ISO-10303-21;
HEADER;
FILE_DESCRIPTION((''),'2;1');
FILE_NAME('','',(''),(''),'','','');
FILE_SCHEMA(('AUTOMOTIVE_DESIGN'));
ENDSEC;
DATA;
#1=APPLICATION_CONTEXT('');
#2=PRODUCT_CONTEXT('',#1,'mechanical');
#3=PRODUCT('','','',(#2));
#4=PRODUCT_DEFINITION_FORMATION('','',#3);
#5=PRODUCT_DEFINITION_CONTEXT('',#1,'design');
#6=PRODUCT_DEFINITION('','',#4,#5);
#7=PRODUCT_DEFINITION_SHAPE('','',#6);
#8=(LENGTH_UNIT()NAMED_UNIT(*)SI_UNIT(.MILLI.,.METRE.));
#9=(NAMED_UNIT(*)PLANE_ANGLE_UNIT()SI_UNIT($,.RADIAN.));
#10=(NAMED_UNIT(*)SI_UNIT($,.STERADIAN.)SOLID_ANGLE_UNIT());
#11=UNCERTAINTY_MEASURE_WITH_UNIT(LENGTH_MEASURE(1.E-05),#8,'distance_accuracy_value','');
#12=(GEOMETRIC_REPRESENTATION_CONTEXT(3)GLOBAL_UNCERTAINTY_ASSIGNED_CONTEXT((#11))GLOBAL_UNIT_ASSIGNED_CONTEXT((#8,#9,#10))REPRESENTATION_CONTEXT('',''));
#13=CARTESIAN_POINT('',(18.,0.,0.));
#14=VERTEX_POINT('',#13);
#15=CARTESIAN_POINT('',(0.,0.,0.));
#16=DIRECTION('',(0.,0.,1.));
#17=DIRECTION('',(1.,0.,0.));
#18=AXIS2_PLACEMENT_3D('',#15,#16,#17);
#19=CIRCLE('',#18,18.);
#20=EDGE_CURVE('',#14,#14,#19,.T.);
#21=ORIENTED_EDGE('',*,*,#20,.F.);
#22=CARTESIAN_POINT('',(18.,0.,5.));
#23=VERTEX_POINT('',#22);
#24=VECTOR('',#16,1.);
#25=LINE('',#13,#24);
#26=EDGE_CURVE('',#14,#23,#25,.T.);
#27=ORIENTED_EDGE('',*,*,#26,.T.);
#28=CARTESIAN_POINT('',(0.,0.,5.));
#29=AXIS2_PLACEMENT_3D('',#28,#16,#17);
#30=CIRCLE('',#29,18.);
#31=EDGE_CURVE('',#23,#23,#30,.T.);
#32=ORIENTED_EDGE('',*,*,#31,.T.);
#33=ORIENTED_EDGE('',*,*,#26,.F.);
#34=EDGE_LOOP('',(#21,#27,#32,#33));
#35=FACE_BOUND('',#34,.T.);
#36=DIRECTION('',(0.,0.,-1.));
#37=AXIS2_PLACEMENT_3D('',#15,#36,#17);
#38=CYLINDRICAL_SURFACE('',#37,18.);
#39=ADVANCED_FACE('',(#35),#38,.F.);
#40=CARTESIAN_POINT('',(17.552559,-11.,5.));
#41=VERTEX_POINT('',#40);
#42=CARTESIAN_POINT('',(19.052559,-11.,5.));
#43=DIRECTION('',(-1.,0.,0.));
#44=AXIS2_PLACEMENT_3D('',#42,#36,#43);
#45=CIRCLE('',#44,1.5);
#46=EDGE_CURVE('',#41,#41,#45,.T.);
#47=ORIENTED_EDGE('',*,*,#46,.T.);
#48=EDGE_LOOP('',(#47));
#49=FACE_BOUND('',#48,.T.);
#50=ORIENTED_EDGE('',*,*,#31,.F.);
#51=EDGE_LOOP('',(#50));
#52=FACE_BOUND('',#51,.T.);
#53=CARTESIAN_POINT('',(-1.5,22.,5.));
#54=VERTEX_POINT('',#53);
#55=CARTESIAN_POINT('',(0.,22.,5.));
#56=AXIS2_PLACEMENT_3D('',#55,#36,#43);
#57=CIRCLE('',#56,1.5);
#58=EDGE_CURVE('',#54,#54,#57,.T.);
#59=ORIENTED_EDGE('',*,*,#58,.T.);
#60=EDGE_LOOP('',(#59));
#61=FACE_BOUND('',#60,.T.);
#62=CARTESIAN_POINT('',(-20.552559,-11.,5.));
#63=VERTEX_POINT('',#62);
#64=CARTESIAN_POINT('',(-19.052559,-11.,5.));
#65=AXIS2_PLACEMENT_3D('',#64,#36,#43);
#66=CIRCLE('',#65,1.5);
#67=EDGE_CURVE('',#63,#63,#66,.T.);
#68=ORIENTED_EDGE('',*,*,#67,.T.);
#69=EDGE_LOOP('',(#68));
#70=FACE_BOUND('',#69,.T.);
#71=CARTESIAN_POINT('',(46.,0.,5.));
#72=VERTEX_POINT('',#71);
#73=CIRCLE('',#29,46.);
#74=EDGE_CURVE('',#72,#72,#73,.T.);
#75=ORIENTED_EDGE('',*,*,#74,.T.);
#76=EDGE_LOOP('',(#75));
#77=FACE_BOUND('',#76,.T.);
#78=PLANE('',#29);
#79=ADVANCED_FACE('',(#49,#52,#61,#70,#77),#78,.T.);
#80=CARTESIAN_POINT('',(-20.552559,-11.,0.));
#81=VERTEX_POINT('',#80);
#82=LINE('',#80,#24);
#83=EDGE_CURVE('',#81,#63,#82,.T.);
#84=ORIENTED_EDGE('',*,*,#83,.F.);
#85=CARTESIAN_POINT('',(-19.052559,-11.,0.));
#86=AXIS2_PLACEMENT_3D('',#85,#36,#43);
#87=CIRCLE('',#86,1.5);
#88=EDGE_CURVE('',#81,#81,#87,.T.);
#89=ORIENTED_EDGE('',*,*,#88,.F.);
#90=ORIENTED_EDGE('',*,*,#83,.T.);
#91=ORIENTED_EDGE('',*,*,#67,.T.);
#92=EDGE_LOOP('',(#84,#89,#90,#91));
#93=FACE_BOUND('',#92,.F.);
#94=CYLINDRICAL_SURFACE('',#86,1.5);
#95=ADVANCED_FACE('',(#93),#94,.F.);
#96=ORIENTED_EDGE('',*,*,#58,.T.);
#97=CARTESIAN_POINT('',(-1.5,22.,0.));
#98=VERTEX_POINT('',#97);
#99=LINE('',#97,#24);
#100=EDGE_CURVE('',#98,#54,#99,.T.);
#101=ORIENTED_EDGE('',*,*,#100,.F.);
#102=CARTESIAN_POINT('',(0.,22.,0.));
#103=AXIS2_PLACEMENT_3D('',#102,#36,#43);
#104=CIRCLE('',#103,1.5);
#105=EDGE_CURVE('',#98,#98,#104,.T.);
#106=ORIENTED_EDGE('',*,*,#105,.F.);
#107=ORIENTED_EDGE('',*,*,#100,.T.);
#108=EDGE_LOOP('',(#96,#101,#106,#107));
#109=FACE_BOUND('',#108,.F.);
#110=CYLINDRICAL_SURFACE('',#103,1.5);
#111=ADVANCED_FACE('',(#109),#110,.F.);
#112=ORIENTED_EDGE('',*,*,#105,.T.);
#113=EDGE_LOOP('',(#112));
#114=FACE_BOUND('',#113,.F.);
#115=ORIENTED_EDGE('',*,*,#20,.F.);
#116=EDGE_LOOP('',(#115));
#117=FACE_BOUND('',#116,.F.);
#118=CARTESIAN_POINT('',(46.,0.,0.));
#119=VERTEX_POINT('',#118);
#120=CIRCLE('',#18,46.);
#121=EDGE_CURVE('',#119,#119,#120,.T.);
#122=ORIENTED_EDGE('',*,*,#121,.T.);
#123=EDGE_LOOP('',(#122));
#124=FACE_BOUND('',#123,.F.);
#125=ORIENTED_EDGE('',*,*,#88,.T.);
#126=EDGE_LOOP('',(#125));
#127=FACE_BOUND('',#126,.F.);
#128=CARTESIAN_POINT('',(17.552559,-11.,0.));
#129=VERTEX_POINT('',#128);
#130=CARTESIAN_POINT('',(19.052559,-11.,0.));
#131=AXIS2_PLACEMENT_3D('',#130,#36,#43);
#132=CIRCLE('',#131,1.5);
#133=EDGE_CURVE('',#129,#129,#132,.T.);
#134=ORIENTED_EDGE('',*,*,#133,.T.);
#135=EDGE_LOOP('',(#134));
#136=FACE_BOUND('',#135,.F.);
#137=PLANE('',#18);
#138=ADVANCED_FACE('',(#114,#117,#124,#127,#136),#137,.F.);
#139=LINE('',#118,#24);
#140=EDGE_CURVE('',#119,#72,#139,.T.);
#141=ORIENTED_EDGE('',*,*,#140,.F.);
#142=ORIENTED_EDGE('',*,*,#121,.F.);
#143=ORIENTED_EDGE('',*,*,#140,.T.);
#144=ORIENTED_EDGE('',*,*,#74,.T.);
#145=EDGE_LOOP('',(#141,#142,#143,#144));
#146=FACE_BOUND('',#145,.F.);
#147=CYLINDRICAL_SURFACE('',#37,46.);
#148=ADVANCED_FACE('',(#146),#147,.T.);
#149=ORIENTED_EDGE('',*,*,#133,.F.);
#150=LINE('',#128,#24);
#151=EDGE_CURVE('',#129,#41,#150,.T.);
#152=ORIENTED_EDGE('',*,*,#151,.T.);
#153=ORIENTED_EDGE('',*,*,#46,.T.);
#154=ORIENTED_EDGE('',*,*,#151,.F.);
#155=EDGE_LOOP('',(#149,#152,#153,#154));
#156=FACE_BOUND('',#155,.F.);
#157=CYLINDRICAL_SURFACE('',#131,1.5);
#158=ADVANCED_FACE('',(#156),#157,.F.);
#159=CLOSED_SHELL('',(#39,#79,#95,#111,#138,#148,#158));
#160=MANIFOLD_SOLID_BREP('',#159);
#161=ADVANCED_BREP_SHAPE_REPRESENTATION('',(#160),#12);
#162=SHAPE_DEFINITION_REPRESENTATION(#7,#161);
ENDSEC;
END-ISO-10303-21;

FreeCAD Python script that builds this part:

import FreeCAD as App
import Part
import Sketcher
Q = App.Units.Quantity

doc = App.newDocument("Part")
params = doc.addObject("Spreadsheet::Sheet", "Params")
for row, (alias, value) in enumerate([
    ("sketch1_diameter", "92 mm"),
    ("sketch1_diameter2", "36 mm"),
    ("pad1_length", "5 mm"),
    ("sketch2_diameter", "3 mm"),
], start=1):
    params.set(f"A{row}", alias)
    params.set(f"B{row}", "=" + value)
    params.setAlias(f"B{row}", alias)

body = doc.addObject("PartDesign::Body", "Body")

# Sketch on XY plane
sketch1 = body.newObject("Sketcher::SketchObject", "Sketch")
sketch1.AttachmentSupport = (doc.getObject("XY_Plane"), [""])
sketch1.MapMode = "FlatFace"
sketch1.addGeometry([
    Part.Circle(App.Vector(0, 0, 0), App.Vector(0, 0, 1), 46),
    Part.Circle(App.Vector(0, 0, 0), App.Vector(0, 0, 1), 18),
], False)
sketch1.addConstraint([
    Sketcher.Constraint("Coincident", 0, 3, -1, 1),
    Sketcher.Constraint("Coincident", 1, 3, -1, 1),
    Sketcher.Constraint("Diameter", 0, Q("92 mm")),
    Sketcher.Constraint("Diameter", 1, Q("36 mm")),
])
sketch1.setExpression("Constraints[2]", "Params.sketch1_diameter")
sketch1.setExpression("Constraints[3]", "Params.sketch1_diameter2")
pad1 = body.newObject("PartDesign::Pad", "Pad")
pad1.Profile = sketch1
pad1.setExpression("Length", "Params.pad1_length")

# Sketch on XY plane
sketch2 = body.newObject("Sketcher::SketchObject", "Sketch001")
sketch2.AttachmentSupport = (doc.getObject("XY_Plane"), [""])
sketch2.MapMode = "FlatFace"
sketch2.addGeometry([
    Part.Circle(App.Vector(0, 22, 0), App.Vector(0, 0, 1), 1.5),
    Part.Circle(App.Vector(-19.1, -11, 0), App.Vector(0, 0, 1), 1.5),
    Part.Circle(App.Vector(19.1, -11, 0), App.Vector(0, 0, 1), 1.5),
], False)
sketch2.addConstraint([
    Sketcher.Constraint("Equal", 0, 1),
    Sketcher.Constraint("Equal", 1, 2),
    Sketcher.Constraint("Symmetric", 1, 3, 2, 3, -2),
    Sketcher.Constraint("PointOnObject", 0, 3, -2),
    Sketcher.Constraint("Diameter", 0, Q("3 mm")),
    Sketcher.Constraint("DistanceY", -1, 1, 0, 3, Q("22 mm")),
    Sketcher.Constraint("DistanceY", 1, 3, -1, 1, Q("11 mm")),
    Sketcher.Constraint("DistanceX", 1, 3, -1, 1, Q("19.052559 mm")),
])
sketch2.setExpression("Constraints[4]", "Params.sketch2_diameter")
pocket1 = body.newObject("PartDesign::Pocket", "Pocket")
pocket1.Profile = sketch2
pocket1.Type = "ThroughAll"
pocket1.Midplane = True

doc.recompute()
